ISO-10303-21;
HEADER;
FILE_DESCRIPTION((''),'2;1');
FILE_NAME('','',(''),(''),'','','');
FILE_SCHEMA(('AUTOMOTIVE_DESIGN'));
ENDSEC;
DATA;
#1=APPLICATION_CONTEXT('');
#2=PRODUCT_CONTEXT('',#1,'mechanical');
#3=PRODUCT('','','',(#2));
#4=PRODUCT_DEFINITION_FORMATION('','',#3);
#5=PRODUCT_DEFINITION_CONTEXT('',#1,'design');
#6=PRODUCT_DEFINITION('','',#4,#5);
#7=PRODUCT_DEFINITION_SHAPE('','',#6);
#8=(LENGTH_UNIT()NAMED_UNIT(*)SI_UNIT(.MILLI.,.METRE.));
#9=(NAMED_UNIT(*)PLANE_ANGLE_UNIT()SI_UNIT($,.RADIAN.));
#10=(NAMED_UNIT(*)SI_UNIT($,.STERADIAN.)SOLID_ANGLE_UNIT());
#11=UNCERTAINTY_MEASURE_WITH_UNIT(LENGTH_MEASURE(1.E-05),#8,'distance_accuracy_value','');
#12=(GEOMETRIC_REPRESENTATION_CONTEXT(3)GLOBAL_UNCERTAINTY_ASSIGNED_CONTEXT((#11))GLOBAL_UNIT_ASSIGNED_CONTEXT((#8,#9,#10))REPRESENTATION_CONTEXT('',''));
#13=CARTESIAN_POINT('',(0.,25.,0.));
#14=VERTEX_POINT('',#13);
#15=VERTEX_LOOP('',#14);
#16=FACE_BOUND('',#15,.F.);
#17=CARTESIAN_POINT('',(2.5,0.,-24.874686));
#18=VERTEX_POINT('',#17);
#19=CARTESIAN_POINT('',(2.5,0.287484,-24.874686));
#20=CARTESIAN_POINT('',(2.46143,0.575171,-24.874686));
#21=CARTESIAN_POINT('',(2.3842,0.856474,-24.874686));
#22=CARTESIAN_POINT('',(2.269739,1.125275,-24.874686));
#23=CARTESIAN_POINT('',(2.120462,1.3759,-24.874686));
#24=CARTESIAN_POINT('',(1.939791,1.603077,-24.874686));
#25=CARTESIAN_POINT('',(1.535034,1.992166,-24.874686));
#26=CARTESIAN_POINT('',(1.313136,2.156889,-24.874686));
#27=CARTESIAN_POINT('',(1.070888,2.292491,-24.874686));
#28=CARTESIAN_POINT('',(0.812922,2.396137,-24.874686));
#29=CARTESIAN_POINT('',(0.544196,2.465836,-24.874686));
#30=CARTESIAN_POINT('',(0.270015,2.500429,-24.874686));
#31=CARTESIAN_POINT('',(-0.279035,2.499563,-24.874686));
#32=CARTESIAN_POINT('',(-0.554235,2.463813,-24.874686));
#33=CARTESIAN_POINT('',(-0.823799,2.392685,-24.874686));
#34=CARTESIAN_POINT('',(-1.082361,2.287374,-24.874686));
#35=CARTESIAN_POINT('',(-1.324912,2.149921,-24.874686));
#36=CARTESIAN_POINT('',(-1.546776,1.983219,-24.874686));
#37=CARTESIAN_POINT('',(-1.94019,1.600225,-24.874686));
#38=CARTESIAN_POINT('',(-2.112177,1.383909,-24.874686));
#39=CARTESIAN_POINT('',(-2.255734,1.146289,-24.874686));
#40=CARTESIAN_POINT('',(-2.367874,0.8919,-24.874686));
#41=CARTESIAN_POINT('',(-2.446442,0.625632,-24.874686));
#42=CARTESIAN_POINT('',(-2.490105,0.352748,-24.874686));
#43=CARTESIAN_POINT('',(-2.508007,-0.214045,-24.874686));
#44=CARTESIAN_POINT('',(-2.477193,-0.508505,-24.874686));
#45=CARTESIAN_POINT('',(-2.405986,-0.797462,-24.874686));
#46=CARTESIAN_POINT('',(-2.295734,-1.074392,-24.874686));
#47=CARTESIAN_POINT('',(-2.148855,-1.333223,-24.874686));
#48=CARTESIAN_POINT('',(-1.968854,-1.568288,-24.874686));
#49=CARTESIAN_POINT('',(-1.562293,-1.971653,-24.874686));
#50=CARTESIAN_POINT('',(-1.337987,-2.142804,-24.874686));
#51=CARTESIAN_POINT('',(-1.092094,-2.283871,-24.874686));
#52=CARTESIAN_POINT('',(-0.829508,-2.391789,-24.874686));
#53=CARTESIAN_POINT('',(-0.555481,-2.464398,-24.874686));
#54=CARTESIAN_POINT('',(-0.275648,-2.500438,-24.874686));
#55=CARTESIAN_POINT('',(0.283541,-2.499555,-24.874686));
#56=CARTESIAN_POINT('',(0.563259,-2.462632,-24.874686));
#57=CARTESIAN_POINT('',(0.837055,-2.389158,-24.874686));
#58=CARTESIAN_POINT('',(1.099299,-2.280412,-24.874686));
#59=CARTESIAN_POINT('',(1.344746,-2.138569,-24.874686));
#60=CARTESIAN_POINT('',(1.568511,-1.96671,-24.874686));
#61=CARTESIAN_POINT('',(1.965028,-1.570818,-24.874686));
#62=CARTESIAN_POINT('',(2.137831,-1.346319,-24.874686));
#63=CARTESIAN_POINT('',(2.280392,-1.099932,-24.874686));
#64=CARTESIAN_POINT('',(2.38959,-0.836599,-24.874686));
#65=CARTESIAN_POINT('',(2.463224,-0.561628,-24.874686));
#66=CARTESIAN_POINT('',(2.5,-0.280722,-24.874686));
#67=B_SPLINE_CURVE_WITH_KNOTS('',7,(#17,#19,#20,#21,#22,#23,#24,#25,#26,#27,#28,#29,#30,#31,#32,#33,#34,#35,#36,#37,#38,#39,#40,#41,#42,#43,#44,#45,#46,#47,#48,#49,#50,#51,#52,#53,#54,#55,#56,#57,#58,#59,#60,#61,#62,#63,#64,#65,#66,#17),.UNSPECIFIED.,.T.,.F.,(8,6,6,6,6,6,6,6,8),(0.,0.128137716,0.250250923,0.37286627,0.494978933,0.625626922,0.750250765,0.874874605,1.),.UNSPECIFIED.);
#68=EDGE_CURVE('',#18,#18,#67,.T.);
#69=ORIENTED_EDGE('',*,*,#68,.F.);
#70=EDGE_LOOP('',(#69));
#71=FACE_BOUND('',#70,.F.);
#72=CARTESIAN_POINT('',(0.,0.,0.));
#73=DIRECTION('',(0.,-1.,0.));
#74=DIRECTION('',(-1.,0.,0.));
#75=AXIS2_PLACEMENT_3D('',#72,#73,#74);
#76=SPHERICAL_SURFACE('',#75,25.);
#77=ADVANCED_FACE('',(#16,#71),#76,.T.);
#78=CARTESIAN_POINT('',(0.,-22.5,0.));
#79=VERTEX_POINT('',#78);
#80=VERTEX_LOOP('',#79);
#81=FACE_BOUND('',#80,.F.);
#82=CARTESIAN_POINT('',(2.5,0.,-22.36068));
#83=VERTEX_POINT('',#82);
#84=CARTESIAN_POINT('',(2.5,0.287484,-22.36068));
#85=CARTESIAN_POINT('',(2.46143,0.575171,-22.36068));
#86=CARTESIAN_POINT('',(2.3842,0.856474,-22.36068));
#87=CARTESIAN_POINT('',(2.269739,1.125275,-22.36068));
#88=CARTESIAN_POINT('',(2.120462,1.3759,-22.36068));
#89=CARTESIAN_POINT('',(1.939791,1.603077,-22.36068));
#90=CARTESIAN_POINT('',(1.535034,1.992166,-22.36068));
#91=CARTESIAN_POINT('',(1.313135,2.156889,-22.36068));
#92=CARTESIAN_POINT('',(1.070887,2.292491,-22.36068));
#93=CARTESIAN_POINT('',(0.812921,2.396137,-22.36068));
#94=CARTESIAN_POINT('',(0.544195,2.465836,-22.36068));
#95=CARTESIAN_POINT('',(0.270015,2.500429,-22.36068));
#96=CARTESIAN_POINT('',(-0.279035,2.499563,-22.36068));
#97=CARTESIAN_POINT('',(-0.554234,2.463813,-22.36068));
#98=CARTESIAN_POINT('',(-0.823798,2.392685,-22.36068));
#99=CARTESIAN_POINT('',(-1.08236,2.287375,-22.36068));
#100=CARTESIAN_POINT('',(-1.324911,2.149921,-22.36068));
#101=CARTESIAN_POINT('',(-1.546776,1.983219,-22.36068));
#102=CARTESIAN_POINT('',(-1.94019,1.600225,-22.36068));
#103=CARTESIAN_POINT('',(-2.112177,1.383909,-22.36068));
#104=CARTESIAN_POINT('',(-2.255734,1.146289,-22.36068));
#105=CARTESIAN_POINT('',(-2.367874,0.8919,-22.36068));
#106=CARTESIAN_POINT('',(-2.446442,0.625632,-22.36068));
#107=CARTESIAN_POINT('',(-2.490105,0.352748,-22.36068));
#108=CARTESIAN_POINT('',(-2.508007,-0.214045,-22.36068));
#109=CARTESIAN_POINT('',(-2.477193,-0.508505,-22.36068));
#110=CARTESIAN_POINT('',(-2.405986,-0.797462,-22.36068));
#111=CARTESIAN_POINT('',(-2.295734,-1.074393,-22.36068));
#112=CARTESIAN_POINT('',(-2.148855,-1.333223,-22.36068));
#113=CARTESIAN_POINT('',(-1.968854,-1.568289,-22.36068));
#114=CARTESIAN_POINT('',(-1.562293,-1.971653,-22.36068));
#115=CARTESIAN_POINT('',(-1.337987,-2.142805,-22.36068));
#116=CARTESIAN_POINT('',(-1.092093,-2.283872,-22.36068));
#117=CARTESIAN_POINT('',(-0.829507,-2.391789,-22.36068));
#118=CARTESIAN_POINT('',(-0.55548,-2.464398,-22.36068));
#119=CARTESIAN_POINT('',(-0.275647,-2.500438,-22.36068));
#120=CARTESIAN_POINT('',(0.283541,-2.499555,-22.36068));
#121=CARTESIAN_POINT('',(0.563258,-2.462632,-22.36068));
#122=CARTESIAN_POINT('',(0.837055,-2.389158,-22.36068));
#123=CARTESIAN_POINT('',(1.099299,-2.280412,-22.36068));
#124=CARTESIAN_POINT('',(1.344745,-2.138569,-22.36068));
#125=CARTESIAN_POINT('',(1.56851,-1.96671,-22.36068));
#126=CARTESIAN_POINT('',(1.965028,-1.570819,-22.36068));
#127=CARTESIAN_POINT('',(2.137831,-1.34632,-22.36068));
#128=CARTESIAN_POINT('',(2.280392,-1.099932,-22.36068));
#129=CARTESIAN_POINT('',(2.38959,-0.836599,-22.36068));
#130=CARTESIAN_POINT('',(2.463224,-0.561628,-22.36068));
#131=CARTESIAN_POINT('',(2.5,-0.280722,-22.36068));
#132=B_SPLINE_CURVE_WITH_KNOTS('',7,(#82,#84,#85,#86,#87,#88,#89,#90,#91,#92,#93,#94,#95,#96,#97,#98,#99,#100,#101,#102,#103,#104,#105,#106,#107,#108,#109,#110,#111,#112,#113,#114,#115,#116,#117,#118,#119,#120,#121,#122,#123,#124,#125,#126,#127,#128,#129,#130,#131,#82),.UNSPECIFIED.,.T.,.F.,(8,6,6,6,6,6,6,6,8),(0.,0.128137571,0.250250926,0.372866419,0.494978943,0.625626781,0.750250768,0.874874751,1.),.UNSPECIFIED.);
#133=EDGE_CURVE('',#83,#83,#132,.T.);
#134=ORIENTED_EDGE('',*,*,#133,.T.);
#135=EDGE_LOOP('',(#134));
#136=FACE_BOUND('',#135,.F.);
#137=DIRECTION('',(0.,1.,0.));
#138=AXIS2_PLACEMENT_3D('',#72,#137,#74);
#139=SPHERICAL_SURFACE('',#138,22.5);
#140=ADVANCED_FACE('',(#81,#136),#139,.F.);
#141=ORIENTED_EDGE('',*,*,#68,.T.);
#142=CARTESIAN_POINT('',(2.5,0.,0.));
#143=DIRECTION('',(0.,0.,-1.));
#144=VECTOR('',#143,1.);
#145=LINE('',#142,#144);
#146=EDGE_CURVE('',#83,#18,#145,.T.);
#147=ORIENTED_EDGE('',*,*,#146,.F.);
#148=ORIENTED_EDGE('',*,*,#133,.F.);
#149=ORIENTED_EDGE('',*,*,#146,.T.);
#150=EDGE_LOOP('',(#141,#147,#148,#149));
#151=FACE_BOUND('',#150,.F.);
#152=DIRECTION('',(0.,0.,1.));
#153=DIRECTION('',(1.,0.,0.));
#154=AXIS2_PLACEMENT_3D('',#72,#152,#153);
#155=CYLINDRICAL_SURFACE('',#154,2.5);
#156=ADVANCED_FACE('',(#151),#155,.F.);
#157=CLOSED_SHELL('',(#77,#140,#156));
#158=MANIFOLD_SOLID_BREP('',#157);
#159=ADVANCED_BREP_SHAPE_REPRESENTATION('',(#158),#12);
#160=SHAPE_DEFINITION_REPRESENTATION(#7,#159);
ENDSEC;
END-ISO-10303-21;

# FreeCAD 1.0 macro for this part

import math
import FreeCAD as App
import Part
import Sketcher

doc = App.newDocument("Part")
params = doc.addObject("Spreadsheet::Sheet", "Params")
for row, (alias, value) in enumerate([
    ("sketch1_radius", "25 mm"),
    ("sketch1_radius2", "22.5 mm"),
    ("revolution_angle", "360 deg"),
    ("sketch2_diameter", "5 mm"),
    ("pocket1_length", "100 mm"),
], start=1):
    params.set(f"A{row}", alias)
    params.set(f"B{row}", "=" + value)
    params.setAlias(f"B{row}", alias)

body = doc.addObject("PartDesign::Body", "Body")

sketch1 = body.newObject("Sketcher::SketchObject", "Sketch")
sketch1.AttachmentSupport = (doc.getObject("XY_Plane"), [""])
sketch1.MapMode = "FlatFace"
sketch1.addGeometry([
    Part.ArcOfCircle(Part.Circle(App.Vector(0, 0, 0), App.Vector(0, 0, 1), 25), math.radians(90), math.radians(270)),
    Part.LineSegment(App.Vector(0, -25, 0), App.Vector(0, -22.5, 0)),
    Part.ArcOfCircle(Part.Circle(App.Vector(0, 0, 0), App.Vector(0, 0, 1), 22.5), math.radians(90), math.radians(270)),
    Part.LineSegment(App.Vector(0, 22.5, 0), App.Vector(0, 25, 0)),
], False)
sketch1.addConstraint([
    Sketcher.Constraint("Coincident", 0, 2, 1, 1),
    Sketcher.Constraint("Coincident", 1, 2, 2, 2),
    Sketcher.Constraint("Coincident", 2, 1, 3, 1),
    Sketcher.Constraint("Coincident", 3, 2, 0, 1),
    Sketcher.Constraint("Vertical", 1),
    Sketcher.Constraint("Vertical", 3),
    Sketcher.Constraint("Coincident", 0, 3, -1, 1),
    Sketcher.Constraint("Coincident", 2, 3, -1, 1),
    Sketcher.Constraint("PointOnObject", 0, 2, -2),
    Sketcher.Constraint("PointOnObject", 2, 1, -2),
    Sketcher.Constraint("Radius", 0, 25.0),
    Sketcher.Constraint("Radius", 2, 22.5),
])
sketch1.setExpression("Constraints[10]", "Params.sketch1_radius")
sketch1.setExpression("Constraints[11]", "Params.sketch1_radius2")
revolution = body.newObject("PartDesign::Revolution", "Revolution")
revolution.Profile = sketch1
revolution.ReferenceAxis = (sketch1, ["V_Axis"])
revolution.setExpression("Angle", "Params.revolution_angle")

sketch2 = body.newObject("Sketcher::SketchObject", "Sketch001")
sketch2.AttachmentSupport = (doc.getObject("XY_Plane"), [""])
sketch2.MapMode = "FlatFace"
sketch2.addGeometry(Part.Circle(App.Vector(0, 0, 0), App.Vector(0, 0, 1), 2.5), False)
sketch2.addConstraint([
    Sketcher.Constraint("Coincident", 0, 3, -1, 1),
    Sketcher.Constraint("Diameter", 0, 5.0),
])
sketch2.setExpression("Constraints[1]", "Params.sketch2_diameter")
pocket1 = body.newObject("PartDesign::Pocket", "Pocket")
pocket1.Profile = sketch2
pocket1.setExpression("Length", "Params.pocket1_length")

doc.recompute()
